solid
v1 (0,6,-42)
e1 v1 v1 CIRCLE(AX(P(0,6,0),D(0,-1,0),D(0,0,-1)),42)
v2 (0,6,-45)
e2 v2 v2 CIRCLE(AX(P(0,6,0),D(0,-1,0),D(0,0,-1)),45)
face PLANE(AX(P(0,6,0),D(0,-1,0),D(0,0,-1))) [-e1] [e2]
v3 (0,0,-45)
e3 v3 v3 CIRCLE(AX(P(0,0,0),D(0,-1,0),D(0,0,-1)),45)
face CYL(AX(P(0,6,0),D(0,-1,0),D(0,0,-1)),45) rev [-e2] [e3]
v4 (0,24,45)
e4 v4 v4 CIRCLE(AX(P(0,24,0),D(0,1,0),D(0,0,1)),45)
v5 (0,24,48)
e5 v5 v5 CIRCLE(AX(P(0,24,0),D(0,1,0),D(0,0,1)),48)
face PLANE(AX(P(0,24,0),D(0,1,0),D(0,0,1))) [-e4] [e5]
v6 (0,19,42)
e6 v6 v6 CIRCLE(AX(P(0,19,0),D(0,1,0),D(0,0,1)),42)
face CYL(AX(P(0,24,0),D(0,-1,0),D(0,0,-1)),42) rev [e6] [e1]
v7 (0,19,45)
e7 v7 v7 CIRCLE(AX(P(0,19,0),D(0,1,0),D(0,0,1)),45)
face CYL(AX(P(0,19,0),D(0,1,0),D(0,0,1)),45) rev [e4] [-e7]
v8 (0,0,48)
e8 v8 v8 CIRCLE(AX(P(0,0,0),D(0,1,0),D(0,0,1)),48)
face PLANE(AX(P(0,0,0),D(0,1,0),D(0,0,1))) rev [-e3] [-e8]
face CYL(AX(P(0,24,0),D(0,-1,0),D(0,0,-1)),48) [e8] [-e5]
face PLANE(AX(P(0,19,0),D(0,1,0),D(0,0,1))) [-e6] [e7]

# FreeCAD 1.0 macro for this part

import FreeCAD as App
import Part
import Sketcher

V = App.Vector

doc = App.newDocument("Part")
params = doc.addObject("Spreadsheet::Sheet", "Params")
for row, (alias, value) in enumerate([
    ("sketch1_diameter", "96 mm"),
    ("sketch1_diameter2", "84 mm"),
    ("pad1_length", "24 mm"),
    ("sketch2_diameter", "90 mm"),
    ("pocket1_length", "5 mm"),
    ("sketch3_diameter", "90 mm"),
    ("pocket2_length", "6 mm"),
], start=1):
    params.set(f"A{row}", alias)
    params.set(f"B{row}", "=" + value)
    params.setAlias(f"B{row}", alias)

body = doc.addObject("PartDesign::Body", "Body")

# Sketch on XZ plane
sketch1 = body.newObject("Sketcher::SketchObject", "Sketch")
sketch1.AttachmentSupport = (doc.getObject("XZ_Plane"), [""])
sketch1.MapMode = "FlatFace"
sketch1.addGeometry(Part.Circle(V(0, 0, 0), V(0, 0, 1), 48), False)
sketch1.addGeometry(Part.Circle(V(0, 0, 0), V(0, 0, 1), 42), False)
sketch1.addConstraint(Sketcher.Constraint("Coincident", 0, 3, -1, 1))
sketch1.addConstraint(Sketcher.Constraint("Coincident", 1, 3, -1, 1))
sketch1.addConstraint(Sketcher.Constraint("Diameter", 0, 96.0))
sketch1.addConstraint(Sketcher.Constraint("Diameter", 1, 84.0))
sketch1.setExpression("Constraints[2]", "Params.sketch1_diameter")
sketch1.setExpression("Constraints[3]", "Params.sketch1_diameter2")
pad1 = body.newObject("PartDesign::Pad", "Pad")
pad1.Profile = sketch1
pad1.setExpression("Length", "Params.pad1_length")
pad1.Reversed = True

# Sketch on XZ plane
sketch2 = body.newObject("Sketcher::SketchObject", "Sketch001")
sketch2.AttachmentSupport = (doc.getObject("XZ_Plane"), [""])
sketch2.MapMode = "FlatFace"
sketch2.AttachmentOffset = App.Placement(V(0, 0, -24), App.Rotation())
sketch2.addGeometry(Part.Circle(V(0, 0, 0), V(0, 0, 1), 45), False)
sketch2.addConstraint(Sketcher.Constraint("Coincident", 0, 3, -1, 1))
sketch2.addConstraint(Sketcher.Constraint("Diameter", 0, 90.0))
sketch2.setExpression("Constraints[1]", "Params.sketch2_diameter")
pocket1 = body.newObject("PartDesign::Pocket", "Pocket")
pocket1.Profile = sketch2
pocket1.setExpression("Length", "Params.pocket1_length")
pocket1.Reversed = True

# Sketch on XZ plane
sketch3 = body.newObject("Sketcher::SketchObject", "Sketch002")
sketch3.AttachmentSupport = (doc.getObject("XZ_Plane"), [""])
sketch3.MapMode = "FlatFace"
sketch3.AttachmentOffset = App.Placement(V(0, 0, -6), App.Rotation())
sketch3.addGeometry(Part.Circle(V(0, 0, 0), V(0, 0, 1), 45), False)
sketch3.addConstraint(Sketcher.Constraint("Coincident", 0, 3, -1, 1))
sketch3.addConstraint(Sketcher.Constraint("Diameter", 0, 90.0))
sketch3.setExpression("Constraints[1]", "Params.sketch3_diameter")
pocket2 = body.newObject("PartDesign::Pocket", "Pocket001")
pocket2.Profile = sketch3
pocket2.setExpression("Length", "Params.pocket2_length")
pocket2.Reversed = True

doc.recompute()
